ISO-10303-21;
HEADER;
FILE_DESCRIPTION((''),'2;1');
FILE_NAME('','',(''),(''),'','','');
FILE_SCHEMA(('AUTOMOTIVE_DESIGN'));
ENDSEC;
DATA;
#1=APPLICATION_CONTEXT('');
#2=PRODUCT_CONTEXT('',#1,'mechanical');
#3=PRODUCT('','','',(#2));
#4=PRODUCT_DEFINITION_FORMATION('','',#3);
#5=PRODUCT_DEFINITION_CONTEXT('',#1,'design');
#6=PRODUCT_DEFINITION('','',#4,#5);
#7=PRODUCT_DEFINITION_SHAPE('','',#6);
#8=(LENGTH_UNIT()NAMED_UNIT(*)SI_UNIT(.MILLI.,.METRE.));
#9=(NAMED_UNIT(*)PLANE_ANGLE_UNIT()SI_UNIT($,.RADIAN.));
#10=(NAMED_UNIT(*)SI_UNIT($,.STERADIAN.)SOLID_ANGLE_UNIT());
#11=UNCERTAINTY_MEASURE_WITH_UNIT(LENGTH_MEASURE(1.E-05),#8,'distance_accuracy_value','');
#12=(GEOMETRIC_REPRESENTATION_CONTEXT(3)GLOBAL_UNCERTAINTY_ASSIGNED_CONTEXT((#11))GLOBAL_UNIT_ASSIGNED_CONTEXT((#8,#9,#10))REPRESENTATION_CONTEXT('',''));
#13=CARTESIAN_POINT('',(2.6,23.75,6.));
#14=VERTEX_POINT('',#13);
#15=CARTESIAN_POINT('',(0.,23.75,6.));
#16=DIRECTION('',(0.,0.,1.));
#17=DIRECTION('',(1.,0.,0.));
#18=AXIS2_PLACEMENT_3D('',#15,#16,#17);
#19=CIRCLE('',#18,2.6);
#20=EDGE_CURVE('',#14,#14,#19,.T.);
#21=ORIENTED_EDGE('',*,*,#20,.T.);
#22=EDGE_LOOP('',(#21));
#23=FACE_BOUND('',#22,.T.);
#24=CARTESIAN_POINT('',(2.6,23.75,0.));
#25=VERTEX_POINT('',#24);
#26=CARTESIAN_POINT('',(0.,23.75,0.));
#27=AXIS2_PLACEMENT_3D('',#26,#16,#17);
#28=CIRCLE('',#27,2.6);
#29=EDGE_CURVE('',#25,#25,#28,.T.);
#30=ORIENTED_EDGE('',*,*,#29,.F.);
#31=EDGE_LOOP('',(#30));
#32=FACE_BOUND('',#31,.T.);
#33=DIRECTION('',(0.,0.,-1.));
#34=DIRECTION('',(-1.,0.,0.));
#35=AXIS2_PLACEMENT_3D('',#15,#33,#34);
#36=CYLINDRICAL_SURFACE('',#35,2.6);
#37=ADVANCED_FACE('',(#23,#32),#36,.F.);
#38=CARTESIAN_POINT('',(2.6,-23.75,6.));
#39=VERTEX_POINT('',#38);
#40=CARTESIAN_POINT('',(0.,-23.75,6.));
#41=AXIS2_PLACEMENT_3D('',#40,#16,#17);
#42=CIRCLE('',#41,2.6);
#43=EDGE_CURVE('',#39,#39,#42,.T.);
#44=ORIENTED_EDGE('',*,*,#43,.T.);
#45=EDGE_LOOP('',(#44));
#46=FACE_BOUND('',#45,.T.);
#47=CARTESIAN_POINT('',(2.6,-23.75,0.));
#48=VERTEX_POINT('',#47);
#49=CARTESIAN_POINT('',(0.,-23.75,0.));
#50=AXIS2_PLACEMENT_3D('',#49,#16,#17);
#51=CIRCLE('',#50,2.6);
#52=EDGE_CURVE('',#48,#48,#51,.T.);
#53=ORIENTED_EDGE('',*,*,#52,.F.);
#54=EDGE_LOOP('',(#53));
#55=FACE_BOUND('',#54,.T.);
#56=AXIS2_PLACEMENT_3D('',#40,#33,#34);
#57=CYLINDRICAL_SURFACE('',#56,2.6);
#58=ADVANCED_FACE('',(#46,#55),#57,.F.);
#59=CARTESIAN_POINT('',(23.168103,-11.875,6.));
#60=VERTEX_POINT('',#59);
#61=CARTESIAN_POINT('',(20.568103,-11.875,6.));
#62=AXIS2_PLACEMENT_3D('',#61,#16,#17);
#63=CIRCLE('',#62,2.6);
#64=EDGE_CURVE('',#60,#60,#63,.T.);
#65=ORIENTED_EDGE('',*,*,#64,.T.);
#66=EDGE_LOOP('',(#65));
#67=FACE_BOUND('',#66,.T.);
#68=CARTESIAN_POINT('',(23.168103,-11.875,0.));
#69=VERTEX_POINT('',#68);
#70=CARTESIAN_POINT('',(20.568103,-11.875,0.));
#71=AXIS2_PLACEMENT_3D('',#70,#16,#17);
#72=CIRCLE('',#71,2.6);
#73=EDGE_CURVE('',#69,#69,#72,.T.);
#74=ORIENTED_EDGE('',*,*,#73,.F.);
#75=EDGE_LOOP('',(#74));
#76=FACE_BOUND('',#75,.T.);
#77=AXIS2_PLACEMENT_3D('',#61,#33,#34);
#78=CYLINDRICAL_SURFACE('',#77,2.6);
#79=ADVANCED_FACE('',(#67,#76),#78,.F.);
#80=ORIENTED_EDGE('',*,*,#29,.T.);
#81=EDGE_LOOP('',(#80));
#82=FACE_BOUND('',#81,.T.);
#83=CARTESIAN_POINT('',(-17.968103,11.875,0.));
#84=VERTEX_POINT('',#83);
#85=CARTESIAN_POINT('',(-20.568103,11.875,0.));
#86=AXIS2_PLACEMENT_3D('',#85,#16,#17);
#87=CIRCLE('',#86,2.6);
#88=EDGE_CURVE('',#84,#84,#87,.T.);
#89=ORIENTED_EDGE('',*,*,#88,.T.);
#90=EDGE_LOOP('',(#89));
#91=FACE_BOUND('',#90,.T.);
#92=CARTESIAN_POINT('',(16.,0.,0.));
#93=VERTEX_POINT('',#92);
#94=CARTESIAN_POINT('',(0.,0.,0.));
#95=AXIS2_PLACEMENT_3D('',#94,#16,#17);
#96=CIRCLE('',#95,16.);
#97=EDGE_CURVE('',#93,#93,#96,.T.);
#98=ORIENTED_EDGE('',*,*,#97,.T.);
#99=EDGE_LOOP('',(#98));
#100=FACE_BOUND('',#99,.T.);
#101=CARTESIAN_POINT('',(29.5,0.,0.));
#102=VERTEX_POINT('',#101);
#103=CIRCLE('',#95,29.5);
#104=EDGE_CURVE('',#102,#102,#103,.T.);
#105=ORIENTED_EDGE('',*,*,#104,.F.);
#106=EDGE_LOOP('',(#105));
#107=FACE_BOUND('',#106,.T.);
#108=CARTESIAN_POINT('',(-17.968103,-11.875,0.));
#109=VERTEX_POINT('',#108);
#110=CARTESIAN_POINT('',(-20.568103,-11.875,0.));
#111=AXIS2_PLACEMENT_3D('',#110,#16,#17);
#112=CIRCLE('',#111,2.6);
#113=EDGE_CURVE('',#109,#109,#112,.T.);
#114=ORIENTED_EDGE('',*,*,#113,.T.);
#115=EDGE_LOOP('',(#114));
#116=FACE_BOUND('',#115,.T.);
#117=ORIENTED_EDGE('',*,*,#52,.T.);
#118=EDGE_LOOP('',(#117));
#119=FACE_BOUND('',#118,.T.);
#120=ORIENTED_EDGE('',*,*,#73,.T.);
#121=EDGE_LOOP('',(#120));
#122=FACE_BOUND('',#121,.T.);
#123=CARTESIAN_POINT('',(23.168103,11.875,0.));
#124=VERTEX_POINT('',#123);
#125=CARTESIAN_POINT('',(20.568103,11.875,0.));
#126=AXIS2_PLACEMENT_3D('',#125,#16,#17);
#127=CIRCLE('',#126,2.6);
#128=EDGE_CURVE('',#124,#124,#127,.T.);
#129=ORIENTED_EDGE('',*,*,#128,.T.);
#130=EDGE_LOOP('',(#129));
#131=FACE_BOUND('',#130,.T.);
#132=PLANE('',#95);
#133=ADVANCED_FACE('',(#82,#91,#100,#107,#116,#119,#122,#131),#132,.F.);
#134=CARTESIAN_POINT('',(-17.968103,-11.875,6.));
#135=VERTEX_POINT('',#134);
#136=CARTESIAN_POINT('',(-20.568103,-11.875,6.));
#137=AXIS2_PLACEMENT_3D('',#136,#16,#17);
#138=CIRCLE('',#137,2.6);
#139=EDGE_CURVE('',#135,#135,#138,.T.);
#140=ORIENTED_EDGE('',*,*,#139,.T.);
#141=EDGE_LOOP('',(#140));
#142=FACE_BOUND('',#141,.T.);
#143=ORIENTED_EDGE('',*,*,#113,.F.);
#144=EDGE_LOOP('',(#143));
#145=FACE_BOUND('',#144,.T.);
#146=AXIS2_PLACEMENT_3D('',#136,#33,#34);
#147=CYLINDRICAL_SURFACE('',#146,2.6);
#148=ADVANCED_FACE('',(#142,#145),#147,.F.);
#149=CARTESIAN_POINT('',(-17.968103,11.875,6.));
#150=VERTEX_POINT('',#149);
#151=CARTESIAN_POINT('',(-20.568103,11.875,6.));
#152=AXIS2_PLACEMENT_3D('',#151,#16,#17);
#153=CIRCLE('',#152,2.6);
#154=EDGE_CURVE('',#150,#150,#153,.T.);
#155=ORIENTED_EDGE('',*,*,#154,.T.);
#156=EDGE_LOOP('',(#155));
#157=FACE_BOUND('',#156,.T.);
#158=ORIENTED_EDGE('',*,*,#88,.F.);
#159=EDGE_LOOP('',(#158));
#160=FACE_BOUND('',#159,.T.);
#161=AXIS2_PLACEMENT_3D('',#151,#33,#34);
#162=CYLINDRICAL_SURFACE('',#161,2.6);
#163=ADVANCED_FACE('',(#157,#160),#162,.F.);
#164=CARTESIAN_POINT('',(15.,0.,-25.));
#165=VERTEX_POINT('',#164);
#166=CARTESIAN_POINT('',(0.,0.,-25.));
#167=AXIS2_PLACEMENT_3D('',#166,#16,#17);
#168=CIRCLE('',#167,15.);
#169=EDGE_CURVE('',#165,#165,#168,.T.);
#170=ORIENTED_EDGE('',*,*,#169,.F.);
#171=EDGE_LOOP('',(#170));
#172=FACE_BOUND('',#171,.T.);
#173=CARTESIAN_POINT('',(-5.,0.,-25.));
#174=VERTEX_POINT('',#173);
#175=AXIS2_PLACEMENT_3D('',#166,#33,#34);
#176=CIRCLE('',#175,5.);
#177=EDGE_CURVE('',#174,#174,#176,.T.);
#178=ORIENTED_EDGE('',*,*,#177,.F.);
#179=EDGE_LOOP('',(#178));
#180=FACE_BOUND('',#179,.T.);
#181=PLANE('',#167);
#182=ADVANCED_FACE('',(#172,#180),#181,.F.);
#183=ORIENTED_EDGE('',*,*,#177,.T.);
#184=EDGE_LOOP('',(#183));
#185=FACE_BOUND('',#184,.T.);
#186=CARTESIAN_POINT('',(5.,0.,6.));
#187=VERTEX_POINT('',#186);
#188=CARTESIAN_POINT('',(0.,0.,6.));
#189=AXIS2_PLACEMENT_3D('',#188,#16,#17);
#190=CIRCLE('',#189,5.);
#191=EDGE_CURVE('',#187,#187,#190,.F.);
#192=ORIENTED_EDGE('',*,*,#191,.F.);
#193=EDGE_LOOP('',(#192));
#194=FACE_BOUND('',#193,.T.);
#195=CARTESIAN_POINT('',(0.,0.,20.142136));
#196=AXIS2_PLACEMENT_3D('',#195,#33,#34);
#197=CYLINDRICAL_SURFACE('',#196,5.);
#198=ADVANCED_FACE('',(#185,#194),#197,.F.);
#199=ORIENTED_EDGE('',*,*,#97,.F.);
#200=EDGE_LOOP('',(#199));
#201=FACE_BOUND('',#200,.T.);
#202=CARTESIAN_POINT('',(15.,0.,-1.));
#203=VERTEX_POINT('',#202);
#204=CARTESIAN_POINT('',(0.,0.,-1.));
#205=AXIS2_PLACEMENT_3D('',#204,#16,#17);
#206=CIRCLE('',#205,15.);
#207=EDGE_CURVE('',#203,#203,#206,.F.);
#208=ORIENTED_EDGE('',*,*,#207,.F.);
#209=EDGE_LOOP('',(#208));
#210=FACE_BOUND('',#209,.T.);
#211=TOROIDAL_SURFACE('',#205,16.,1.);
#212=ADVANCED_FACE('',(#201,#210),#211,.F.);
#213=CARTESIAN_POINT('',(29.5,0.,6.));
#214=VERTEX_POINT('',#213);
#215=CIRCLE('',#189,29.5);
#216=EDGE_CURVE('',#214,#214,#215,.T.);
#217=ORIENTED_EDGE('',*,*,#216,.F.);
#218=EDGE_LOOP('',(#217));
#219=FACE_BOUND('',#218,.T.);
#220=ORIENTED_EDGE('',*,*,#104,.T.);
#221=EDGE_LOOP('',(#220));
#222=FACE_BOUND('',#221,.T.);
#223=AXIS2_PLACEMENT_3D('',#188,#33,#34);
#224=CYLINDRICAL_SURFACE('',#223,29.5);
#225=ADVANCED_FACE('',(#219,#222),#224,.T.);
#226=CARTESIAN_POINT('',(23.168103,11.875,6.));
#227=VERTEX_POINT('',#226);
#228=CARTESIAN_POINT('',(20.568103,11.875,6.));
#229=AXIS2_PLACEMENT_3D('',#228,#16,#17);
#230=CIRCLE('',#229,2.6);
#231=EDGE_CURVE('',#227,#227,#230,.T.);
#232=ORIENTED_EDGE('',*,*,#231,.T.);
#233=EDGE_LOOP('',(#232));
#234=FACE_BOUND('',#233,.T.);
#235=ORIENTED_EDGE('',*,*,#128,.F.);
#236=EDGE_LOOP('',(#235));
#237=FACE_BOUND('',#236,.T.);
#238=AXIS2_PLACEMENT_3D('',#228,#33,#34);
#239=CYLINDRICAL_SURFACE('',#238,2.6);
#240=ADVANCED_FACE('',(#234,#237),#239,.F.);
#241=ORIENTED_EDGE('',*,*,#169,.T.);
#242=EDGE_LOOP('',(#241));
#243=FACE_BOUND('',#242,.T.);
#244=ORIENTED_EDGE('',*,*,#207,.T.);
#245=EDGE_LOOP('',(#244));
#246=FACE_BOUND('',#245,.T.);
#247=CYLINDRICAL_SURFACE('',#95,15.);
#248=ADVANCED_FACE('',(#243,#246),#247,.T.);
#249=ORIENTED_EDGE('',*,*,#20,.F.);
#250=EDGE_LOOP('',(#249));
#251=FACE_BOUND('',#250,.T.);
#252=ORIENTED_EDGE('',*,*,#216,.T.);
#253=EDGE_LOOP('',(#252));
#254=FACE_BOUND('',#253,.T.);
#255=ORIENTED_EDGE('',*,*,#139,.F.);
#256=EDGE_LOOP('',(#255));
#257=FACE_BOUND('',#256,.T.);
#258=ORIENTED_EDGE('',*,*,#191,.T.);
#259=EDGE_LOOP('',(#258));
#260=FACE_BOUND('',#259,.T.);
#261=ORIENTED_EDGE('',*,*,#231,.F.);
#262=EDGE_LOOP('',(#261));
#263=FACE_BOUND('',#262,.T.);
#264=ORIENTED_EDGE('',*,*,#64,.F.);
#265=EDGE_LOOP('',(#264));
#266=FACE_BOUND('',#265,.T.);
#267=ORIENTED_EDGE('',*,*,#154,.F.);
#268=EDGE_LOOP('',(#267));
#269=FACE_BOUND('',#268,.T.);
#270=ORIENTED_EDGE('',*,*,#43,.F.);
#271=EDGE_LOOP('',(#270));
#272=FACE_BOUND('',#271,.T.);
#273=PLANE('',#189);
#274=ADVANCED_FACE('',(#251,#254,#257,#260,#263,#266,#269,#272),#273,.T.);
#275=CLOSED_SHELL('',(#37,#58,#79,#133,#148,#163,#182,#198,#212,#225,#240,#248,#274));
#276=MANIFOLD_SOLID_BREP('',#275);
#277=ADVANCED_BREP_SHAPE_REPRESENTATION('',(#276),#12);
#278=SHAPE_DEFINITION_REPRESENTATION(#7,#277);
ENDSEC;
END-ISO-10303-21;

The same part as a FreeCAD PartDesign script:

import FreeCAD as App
import Part
import Sketcher

V = App.Vector


def edges_at(feature, points):
    """Names of the edges that pass closest to the given points."""
    edges = feature.Shape.Edges
    near = lambda p: min(range(len(edges)), key=lambda i: edges[i].distToShape(Part.Vertex(*p))[0])
    return sorted({f"Edge{near(p) + 1}" for p in points})

doc = App.newDocument("Part")
body = doc.addObject("PartDesign::Body", "Body")

# Sketch on XY plane
sketch1 = body.newObject("Sketcher::SketchObject", "Sketch")
sketch1.AttachmentSupport = (doc.getObject("XY_Plane"), [""])
sketch1.MapMode = "FlatFace"
sketch1.addGeometry(Part.Circle(V(0, 0, 0), V(0, 0, 1), 29.5), False)
sketch1.addGeometry(Part.Circle(V(-20.6, -11.9, 0), V(0, 0, 1), 2.6), False)
sketch1.addGeometry(Part.Circle(V(0, -23.8, 0), V(0, 0, 1), 2.6), False)
sketch1.addGeometry(Part.Circle(V(20.6, -11.9, 0), V(0, 0, 1), 2.6), False)
sketch1.addGeometry(Part.Circle(V(-20.6, 11.9, 0), V(0, 0, 1), 2.6), False)
sketch1.addGeometry(Part.Circle(V(20.6, 11.9, 0), V(0, 0, 1), 2.6), False)
sketch1.addGeometry(Part.Circle(V(0, 23.8, 0), V(0, 0, 1), 2.6), False)
sketch1.addConstraint(Sketcher.Constraint("Coincident", 0, 3, -1, 1))
sketch1.addConstraint(Sketcher.Constraint("Equal", 1, 2))
sketch1.addConstraint(Sketcher.Constraint("Equal", 2, 3))
sketch1.addConstraint(Sketcher.Constraint("Equal", 3, 4))
sketch1.addConstraint(Sketcher.Constraint("Equal", 4, 5))
sketch1.addConstraint(Sketcher.Constraint("Equal", 5, 6))
sketch1.addConstraint(Sketcher.Constraint("Symmetric", 3, 3, 4, 3, -1, 1))
sketch1.addConstraint(Sketcher.Constraint("Symmetric", 1, 3, 5, 3, -1, 1))
sketch1.addConstraint(Sketcher.Constraint("Symmetric", 2, 3, 6, 3, -1, 1))
sketch1.addConstraint(Sketcher.Constraint("Symmetric", 1, 3, 3, 3, -2))
sketch1.addConstraint(Sketcher.Constraint("PointOnObject", 2, 3, -2))
sketch1.addConstraint(Sketcher.Constraint("Diameter", 0, 59.0))
sketch1.addConstraint(Sketcher.Constraint("Diameter", 1, 5.2))
sketch1.addConstraint(Sketcher.Constraint("DistanceY", 2, 3, -1, 1, 23.75))
sketch1.addConstraint(Sketcher.Constraint("DistanceY", 1, 3, 4, 3, 23.75))
sketch1.addConstraint(Sketcher.Constraint("DistanceX", 1, 3, -1, 1, 20.568103))
pad1 = body.newObject("PartDesign::Pad", "Pad")
pad1.Profile = sketch1
pad1.Length = 6

# Sketch on YZ plane
sketch2 = body.newObject("Sketcher::SketchObject", "Sketch001")
sketch2.AttachmentSupport = (doc.getObject("YZ_Plane"), [""])
sketch2.MapMode = "FlatFace"
sketch2.addGeometry(Part.LineSegment(V(15, 0, 0), V(0, 0, 0)), False)
sketch2.addGeometry(Part.LineSegment(V(0, 0, 0), V(0, -25, 0)), False)
sketch2.addGeometry(Part.LineSegment(V(0, -25, 0), V(15, -25, 0)), False)
sketch2.addGeometry(Part.LineSegment(V(15, -25, 0), V(15, 0, 0)), False)
sketch2.addConstraint(Sketcher.Constraint("Coincident", 0, 2, 1, 1))
sketch2.addConstraint(Sketcher.Constraint("Coincident", 1, 2, 2, 1))
sketch2.addConstraint(Sketcher.Constraint("Coincident", 2, 2, 3, 1))
sketch2.addConstraint(Sketcher.Constraint("Coincident", 3, 2, 0, 1))
sketch2.addConstraint(Sketcher.Constraint("Horizontal", 0))
sketch2.addConstraint(Sketcher.Constraint("Vertical", 1))
sketch2.addConstraint(Sketcher.Constraint("Horizontal", 2))
sketch2.addConstraint(Sketcher.Constraint("Vertical", 3))
sketch2.addConstraint(Sketcher.Constraint("Coincident", 0, 2, -1, 1))
sketch2.addConstraint(Sketcher.Constraint("DistanceX", 0, 2, 0, 1, 15.0))
sketch2.addConstraint(Sketcher.Constraint("DistanceY", 1, 2, 1, 1, 25.0))
revolution = body.newObject("PartDesign::Revolution", "Revolution")
revolution.Profile = sketch2
revolution.ReferenceAxis = (sketch2, ["V_Axis"])
revolution.Angle = 360
doc.recompute()

fillet = body.newObject("PartDesign::Fillet", "Fillet")
fillet.Base = (revolution, edges_at(revolution, [(-15, 0, 0)]))
fillet.Radius = 1

# Sketch on XY plane
sketch3 = body.newObject("Sketcher::SketchObject", "Sketch002")
sketch3.AttachmentSupport = (doc.getObject("XY_Plane"), [""])
sketch3.MapMode = "FlatFace"
sketch3.AttachmentOffset = App.Placement(V(0, 0, -25), App.Rotation())
sketch3.addGeometry(Part.Circle(V(0, 0, 0), V(0, 0, 1), 5), False)
sketch3.addConstraint(Sketcher.Constraint("Coincident", 0, 3, -1, 1))
sketch3.addConstraint(Sketcher.Constraint("Diameter", 0, 10.0))
pocket1 = body.newObject("PartDesign::Pocket", "Pocket")
pocket1.Profile = sketch3
pocket1.Length = 31
pocket1.Reversed = True

doc.recompute()
